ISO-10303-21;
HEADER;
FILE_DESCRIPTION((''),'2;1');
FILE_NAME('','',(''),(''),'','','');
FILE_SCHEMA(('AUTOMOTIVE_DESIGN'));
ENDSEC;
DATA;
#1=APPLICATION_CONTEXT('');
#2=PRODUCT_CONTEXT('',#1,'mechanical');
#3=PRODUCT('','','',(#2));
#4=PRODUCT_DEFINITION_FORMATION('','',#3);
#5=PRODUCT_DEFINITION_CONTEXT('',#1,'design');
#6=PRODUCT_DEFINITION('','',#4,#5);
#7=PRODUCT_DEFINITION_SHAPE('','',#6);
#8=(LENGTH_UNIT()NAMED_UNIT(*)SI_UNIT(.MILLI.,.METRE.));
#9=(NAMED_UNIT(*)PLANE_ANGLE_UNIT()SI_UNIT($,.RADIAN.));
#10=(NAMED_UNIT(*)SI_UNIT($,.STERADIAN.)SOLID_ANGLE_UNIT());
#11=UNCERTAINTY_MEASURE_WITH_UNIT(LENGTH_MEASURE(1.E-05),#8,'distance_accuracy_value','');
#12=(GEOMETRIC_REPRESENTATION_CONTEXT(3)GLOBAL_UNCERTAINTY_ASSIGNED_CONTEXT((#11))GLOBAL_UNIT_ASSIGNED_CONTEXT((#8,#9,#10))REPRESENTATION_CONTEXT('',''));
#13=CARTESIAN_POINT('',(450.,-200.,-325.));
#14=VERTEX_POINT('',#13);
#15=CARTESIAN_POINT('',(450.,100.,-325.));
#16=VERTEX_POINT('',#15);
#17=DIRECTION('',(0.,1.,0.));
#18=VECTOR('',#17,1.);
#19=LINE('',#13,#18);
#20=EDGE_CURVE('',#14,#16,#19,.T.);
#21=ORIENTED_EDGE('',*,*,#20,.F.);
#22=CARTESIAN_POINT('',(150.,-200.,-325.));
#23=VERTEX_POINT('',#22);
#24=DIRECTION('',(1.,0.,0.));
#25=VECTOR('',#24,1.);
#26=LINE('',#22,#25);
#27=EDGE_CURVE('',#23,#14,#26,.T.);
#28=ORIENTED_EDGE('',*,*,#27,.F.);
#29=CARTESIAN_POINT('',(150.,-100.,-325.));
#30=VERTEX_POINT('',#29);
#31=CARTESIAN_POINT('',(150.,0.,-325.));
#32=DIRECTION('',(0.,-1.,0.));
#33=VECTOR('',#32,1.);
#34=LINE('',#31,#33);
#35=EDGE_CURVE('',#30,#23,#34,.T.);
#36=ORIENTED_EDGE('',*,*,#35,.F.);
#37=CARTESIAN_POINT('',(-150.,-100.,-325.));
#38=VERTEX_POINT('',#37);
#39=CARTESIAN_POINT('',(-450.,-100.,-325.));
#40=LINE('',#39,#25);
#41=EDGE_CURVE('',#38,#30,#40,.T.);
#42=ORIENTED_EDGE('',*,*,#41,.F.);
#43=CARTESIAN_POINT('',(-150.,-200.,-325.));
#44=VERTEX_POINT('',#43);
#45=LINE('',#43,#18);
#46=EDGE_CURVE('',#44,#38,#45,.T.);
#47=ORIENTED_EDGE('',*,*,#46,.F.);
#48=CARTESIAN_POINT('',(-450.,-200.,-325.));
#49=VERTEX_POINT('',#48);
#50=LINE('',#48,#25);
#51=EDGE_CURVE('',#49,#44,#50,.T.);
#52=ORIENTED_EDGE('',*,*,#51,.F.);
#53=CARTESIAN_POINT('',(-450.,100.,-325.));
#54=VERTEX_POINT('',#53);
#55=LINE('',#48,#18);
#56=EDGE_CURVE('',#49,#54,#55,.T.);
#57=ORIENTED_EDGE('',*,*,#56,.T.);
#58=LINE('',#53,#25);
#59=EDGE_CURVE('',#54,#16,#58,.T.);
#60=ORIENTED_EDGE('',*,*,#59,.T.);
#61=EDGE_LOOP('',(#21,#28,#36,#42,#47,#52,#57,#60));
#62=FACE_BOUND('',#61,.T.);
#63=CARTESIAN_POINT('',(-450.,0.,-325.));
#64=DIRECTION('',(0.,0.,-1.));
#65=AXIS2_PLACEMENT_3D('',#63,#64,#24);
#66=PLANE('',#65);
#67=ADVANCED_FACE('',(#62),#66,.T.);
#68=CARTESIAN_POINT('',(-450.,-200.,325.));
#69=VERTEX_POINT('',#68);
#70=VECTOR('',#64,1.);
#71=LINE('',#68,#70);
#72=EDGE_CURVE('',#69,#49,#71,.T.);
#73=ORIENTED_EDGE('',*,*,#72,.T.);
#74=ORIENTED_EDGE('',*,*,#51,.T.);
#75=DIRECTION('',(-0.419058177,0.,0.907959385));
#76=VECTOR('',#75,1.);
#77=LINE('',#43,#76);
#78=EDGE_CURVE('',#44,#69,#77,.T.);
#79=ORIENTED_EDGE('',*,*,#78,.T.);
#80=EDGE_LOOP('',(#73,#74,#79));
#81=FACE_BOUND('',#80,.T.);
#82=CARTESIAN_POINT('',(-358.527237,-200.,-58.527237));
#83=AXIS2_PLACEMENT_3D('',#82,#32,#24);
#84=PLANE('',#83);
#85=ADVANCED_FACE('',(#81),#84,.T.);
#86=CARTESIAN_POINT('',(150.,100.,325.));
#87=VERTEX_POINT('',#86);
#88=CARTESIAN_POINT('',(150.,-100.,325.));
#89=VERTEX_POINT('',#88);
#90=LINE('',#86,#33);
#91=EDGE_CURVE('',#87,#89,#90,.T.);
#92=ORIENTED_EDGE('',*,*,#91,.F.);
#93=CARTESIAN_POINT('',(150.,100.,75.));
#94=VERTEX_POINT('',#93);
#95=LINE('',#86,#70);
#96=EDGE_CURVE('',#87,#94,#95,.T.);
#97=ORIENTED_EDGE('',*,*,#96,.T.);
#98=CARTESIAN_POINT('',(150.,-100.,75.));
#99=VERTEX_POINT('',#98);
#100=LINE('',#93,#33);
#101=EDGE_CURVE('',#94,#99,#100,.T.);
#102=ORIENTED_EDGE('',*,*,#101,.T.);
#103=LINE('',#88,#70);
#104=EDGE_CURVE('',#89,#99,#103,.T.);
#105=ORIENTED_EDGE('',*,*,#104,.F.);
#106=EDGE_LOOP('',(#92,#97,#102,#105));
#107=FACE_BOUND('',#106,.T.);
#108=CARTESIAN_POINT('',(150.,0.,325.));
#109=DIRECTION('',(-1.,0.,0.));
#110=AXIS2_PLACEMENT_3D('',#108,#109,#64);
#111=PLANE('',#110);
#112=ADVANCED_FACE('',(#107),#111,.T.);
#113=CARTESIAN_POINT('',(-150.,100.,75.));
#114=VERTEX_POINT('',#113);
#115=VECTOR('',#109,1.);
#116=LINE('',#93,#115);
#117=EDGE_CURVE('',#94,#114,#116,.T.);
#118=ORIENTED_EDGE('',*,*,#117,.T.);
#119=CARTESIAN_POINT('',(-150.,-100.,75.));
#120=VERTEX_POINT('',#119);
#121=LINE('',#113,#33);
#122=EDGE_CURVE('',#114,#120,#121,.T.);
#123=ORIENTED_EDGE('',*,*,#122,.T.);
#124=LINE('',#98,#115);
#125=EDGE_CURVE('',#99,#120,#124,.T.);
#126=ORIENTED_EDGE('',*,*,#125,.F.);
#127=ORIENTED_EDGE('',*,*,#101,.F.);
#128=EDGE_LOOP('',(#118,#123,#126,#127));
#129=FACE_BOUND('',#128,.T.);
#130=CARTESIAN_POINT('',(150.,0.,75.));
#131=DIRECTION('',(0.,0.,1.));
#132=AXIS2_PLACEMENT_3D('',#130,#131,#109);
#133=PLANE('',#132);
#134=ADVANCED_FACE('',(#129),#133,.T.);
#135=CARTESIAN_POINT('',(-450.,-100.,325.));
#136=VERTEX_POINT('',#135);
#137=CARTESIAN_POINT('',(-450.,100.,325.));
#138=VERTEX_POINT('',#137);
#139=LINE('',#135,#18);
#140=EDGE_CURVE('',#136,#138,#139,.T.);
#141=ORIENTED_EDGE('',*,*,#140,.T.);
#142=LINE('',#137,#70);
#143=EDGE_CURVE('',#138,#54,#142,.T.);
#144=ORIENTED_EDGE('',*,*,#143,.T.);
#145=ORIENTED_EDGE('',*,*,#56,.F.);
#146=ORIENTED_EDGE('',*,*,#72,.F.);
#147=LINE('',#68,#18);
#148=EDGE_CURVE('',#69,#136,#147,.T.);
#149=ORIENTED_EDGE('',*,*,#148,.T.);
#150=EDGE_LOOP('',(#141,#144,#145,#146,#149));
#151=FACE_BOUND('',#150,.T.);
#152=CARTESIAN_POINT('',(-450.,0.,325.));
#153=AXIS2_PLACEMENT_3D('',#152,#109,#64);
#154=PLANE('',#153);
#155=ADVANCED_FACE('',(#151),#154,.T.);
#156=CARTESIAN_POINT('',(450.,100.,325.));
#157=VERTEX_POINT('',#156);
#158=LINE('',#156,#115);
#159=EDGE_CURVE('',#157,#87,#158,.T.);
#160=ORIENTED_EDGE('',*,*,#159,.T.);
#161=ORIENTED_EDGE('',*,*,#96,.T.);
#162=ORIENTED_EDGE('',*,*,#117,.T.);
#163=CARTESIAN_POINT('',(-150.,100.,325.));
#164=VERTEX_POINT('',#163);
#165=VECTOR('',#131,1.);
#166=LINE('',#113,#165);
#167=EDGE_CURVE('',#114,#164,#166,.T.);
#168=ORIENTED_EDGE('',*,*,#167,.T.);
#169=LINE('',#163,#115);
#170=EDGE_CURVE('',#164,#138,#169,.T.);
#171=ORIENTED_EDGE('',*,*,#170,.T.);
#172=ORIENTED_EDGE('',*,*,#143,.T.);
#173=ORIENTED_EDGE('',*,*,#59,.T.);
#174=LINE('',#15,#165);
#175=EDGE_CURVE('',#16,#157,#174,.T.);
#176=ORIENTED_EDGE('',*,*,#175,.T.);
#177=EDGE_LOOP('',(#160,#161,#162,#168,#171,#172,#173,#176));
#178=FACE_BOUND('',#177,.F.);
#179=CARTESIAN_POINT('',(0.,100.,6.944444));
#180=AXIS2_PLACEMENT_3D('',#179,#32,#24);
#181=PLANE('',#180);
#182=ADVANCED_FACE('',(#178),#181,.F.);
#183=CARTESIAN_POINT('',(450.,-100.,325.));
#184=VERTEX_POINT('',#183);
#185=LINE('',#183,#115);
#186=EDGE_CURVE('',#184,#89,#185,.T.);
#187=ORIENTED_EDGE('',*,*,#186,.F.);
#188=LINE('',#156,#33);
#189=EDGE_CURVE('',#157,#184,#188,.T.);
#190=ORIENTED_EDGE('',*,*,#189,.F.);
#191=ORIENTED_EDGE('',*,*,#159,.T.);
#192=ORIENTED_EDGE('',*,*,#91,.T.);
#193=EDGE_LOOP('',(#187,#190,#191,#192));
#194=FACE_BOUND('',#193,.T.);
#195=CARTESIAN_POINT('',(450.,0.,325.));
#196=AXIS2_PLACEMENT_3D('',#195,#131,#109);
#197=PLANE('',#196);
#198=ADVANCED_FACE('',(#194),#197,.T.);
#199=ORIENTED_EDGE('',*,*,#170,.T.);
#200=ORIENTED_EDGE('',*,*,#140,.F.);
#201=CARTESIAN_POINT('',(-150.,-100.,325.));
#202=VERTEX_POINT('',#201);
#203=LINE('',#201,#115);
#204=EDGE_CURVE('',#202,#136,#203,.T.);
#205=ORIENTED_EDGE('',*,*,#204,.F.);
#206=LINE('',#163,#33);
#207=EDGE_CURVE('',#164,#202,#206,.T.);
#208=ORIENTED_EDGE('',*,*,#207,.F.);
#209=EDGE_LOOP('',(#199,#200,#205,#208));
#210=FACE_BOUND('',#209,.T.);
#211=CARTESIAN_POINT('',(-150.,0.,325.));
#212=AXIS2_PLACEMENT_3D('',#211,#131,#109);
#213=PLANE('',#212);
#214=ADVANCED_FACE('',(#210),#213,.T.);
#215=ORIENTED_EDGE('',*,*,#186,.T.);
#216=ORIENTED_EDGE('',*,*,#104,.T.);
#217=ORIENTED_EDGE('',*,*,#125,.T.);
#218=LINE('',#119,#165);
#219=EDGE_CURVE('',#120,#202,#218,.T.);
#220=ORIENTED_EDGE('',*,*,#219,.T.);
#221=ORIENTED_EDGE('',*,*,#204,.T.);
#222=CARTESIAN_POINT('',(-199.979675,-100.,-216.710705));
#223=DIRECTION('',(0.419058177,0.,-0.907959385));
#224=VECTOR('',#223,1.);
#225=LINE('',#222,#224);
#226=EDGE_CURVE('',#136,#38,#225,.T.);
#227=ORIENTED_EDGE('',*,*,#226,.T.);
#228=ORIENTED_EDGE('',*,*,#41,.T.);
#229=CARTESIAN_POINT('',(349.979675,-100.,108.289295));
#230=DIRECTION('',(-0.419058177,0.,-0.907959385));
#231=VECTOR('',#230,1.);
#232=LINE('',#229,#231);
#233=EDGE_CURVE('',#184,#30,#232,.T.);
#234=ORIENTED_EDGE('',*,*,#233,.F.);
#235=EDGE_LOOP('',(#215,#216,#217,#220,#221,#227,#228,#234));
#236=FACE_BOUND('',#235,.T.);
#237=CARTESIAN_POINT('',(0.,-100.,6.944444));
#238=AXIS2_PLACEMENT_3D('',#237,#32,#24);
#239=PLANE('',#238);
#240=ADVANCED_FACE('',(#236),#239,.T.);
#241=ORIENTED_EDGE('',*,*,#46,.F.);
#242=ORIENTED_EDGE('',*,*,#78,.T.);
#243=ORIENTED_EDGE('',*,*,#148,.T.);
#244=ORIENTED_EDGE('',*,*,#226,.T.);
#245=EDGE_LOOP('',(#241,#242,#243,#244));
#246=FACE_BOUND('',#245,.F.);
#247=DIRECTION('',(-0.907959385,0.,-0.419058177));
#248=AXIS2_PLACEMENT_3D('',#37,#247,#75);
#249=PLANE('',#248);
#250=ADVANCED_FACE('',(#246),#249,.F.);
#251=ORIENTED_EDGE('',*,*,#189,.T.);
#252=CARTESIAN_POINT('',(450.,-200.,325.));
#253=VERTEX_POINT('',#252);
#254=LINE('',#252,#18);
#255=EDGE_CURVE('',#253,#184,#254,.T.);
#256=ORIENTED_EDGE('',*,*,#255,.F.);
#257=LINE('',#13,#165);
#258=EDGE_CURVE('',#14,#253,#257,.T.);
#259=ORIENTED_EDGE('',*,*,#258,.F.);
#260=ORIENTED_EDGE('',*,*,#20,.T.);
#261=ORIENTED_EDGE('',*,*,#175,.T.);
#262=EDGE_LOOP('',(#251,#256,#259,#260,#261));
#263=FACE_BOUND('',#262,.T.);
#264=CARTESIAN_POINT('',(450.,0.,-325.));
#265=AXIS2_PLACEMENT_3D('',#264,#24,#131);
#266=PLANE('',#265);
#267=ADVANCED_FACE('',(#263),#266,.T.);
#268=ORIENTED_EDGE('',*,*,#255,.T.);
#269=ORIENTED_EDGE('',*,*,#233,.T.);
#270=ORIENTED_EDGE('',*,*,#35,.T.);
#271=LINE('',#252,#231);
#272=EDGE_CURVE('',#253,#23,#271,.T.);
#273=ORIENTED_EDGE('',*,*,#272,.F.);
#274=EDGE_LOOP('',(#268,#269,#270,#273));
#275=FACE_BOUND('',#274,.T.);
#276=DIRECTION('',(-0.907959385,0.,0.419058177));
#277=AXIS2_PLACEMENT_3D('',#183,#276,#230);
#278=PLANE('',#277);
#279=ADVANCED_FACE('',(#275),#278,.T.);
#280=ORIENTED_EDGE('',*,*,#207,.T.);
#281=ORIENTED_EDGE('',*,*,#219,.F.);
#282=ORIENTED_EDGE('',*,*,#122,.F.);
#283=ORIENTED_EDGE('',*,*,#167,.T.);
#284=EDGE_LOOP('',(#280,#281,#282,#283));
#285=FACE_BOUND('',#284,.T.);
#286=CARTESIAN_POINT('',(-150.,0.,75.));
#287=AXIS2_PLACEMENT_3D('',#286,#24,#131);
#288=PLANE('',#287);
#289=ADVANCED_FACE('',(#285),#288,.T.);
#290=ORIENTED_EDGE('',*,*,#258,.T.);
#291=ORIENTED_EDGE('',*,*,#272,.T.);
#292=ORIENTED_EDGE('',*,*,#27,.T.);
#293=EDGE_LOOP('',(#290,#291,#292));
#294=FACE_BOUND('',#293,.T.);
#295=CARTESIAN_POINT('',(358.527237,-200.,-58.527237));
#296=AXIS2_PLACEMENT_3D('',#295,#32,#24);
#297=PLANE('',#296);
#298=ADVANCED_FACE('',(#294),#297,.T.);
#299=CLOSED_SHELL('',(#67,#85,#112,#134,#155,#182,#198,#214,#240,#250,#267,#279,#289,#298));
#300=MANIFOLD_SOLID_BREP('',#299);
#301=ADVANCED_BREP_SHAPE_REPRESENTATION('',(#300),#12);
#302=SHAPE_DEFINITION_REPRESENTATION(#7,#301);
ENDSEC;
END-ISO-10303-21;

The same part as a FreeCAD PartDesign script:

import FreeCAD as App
import Part
import Sketcher

V = App.Vector
Q = App.Units.Quantity


def add_polygon(sketch, points):
    """Adds a closed chain of lines whose ends are joined by coincident constraints."""
    first, n = sketch.GeometryCount, len(points)
    for a, b in zip(points, points[1:] + points[:1]):
        sketch.addGeometry(Part.LineSegment(App.Vector(*a, 0), App.Vector(*b, 0)), False)
    for i in range(n):
        sketch.addConstraint(Sketcher.Constraint("Coincident", first + i, 2, first + (i + 1) % n, 1))

doc = App.newDocument("Part")
body = doc.addObject("PartDesign::Body", "Body")

# Sketch on XZ plane
sketch1 = body.newObject("Sketcher::SketchObject", "Sketch")
sketch1.AttachmentSupport = (doc.getObject("XZ_Plane"), [""])
sketch1.MapMode = "FlatFace"
add_polygon(sketch1, [(450, -325), (450, 325), (150, 325), (150, 75), (-150, 75), (-150, 325), (-450, 325), (-450, -325)])  # lines 0-7
sketch1.addConstraint([
    Sketcher.Constraint("Vertical", 0),
    Sketcher.Constraint("Horizontal", 1),
    Sketcher.Constraint("Vertical", 2),
    Sketcher.Constraint("Horizontal", 3),
    Sketcher.Constraint("Vertical", 4),
    Sketcher.Constraint("Horizontal", 5),
    Sketcher.Constraint("Vertical", 6),
    Sketcher.Constraint("Horizontal", 7),
    Sketcher.Constraint("Symmetric", 0, 2, 6, 2, -1, 1),
    Sketcher.Constraint("Symmetric", 1, 2, 4, 2, -2),
    Sketcher.Constraint("Equal", 1, 3),
    Sketcher.Constraint("DistanceX", 1, 2, 1, 1, Q("300 mm")),
    Sketcher.Constraint("DistanceY", 0, 1, 0, 2, Q("650 mm")),
    Sketcher.Constraint("DistanceY", 2, 2, 2, 1, Q("250 mm")),
])
pad1 = body.newObject("PartDesign::Pad", "Pad")
pad1.Profile = sketch1
pad1.Length = 200
pad1.Midplane = True

# Sketch on XZ plane
sketch2 = body.newObject("Sketcher::SketchObject", "Sketch001")
sketch2.AttachmentSupport = (doc.getObject("XZ_Plane"), [""])
sketch2.MapMode = "FlatFace"
sketch2.AttachmentOffset = App.Placement(V(0, 0, 100), App.Rotation())
add_polygon(sketch2, [(-450, 325), (-450, -325), (-150, -325)])  # lines 0-2
add_polygon(sketch2, [(450, 325), (150, -325), (450, -325)])  # lines 3-5
sketch2.addConstraint([
    Sketcher.Constraint("Vertical", 0),
    Sketcher.Constraint("Horizontal", 1),
    Sketcher.Constraint("Horizontal", 4),
    Sketcher.Constraint("Vertical", 5),
    Sketcher.Constraint("Symmetric", 2, 2, 4, 2, -1, 1),
    Sketcher.Constraint("Symmetric", 1, 2, 3, 2, -2),
    Sketcher.Constraint("Horizontal", 2, 2, 5, 2),
    Sketcher.Constraint("DistanceX", 1, 1, 1, 2, Q("300 mm")),
    Sketcher.Constraint("DistanceY", 0, 2, 0, 1, Q("650 mm")),
    Sketcher.Constraint("DistanceX", 0, 2, -1, 1, Q("450 mm")),
])
pad2 = body.newObject("PartDesign::Pad", "Pad001")
pad2.Profile = sketch2
pad2.Length = 200
pad2.Midplane = True

doc.recompute()
